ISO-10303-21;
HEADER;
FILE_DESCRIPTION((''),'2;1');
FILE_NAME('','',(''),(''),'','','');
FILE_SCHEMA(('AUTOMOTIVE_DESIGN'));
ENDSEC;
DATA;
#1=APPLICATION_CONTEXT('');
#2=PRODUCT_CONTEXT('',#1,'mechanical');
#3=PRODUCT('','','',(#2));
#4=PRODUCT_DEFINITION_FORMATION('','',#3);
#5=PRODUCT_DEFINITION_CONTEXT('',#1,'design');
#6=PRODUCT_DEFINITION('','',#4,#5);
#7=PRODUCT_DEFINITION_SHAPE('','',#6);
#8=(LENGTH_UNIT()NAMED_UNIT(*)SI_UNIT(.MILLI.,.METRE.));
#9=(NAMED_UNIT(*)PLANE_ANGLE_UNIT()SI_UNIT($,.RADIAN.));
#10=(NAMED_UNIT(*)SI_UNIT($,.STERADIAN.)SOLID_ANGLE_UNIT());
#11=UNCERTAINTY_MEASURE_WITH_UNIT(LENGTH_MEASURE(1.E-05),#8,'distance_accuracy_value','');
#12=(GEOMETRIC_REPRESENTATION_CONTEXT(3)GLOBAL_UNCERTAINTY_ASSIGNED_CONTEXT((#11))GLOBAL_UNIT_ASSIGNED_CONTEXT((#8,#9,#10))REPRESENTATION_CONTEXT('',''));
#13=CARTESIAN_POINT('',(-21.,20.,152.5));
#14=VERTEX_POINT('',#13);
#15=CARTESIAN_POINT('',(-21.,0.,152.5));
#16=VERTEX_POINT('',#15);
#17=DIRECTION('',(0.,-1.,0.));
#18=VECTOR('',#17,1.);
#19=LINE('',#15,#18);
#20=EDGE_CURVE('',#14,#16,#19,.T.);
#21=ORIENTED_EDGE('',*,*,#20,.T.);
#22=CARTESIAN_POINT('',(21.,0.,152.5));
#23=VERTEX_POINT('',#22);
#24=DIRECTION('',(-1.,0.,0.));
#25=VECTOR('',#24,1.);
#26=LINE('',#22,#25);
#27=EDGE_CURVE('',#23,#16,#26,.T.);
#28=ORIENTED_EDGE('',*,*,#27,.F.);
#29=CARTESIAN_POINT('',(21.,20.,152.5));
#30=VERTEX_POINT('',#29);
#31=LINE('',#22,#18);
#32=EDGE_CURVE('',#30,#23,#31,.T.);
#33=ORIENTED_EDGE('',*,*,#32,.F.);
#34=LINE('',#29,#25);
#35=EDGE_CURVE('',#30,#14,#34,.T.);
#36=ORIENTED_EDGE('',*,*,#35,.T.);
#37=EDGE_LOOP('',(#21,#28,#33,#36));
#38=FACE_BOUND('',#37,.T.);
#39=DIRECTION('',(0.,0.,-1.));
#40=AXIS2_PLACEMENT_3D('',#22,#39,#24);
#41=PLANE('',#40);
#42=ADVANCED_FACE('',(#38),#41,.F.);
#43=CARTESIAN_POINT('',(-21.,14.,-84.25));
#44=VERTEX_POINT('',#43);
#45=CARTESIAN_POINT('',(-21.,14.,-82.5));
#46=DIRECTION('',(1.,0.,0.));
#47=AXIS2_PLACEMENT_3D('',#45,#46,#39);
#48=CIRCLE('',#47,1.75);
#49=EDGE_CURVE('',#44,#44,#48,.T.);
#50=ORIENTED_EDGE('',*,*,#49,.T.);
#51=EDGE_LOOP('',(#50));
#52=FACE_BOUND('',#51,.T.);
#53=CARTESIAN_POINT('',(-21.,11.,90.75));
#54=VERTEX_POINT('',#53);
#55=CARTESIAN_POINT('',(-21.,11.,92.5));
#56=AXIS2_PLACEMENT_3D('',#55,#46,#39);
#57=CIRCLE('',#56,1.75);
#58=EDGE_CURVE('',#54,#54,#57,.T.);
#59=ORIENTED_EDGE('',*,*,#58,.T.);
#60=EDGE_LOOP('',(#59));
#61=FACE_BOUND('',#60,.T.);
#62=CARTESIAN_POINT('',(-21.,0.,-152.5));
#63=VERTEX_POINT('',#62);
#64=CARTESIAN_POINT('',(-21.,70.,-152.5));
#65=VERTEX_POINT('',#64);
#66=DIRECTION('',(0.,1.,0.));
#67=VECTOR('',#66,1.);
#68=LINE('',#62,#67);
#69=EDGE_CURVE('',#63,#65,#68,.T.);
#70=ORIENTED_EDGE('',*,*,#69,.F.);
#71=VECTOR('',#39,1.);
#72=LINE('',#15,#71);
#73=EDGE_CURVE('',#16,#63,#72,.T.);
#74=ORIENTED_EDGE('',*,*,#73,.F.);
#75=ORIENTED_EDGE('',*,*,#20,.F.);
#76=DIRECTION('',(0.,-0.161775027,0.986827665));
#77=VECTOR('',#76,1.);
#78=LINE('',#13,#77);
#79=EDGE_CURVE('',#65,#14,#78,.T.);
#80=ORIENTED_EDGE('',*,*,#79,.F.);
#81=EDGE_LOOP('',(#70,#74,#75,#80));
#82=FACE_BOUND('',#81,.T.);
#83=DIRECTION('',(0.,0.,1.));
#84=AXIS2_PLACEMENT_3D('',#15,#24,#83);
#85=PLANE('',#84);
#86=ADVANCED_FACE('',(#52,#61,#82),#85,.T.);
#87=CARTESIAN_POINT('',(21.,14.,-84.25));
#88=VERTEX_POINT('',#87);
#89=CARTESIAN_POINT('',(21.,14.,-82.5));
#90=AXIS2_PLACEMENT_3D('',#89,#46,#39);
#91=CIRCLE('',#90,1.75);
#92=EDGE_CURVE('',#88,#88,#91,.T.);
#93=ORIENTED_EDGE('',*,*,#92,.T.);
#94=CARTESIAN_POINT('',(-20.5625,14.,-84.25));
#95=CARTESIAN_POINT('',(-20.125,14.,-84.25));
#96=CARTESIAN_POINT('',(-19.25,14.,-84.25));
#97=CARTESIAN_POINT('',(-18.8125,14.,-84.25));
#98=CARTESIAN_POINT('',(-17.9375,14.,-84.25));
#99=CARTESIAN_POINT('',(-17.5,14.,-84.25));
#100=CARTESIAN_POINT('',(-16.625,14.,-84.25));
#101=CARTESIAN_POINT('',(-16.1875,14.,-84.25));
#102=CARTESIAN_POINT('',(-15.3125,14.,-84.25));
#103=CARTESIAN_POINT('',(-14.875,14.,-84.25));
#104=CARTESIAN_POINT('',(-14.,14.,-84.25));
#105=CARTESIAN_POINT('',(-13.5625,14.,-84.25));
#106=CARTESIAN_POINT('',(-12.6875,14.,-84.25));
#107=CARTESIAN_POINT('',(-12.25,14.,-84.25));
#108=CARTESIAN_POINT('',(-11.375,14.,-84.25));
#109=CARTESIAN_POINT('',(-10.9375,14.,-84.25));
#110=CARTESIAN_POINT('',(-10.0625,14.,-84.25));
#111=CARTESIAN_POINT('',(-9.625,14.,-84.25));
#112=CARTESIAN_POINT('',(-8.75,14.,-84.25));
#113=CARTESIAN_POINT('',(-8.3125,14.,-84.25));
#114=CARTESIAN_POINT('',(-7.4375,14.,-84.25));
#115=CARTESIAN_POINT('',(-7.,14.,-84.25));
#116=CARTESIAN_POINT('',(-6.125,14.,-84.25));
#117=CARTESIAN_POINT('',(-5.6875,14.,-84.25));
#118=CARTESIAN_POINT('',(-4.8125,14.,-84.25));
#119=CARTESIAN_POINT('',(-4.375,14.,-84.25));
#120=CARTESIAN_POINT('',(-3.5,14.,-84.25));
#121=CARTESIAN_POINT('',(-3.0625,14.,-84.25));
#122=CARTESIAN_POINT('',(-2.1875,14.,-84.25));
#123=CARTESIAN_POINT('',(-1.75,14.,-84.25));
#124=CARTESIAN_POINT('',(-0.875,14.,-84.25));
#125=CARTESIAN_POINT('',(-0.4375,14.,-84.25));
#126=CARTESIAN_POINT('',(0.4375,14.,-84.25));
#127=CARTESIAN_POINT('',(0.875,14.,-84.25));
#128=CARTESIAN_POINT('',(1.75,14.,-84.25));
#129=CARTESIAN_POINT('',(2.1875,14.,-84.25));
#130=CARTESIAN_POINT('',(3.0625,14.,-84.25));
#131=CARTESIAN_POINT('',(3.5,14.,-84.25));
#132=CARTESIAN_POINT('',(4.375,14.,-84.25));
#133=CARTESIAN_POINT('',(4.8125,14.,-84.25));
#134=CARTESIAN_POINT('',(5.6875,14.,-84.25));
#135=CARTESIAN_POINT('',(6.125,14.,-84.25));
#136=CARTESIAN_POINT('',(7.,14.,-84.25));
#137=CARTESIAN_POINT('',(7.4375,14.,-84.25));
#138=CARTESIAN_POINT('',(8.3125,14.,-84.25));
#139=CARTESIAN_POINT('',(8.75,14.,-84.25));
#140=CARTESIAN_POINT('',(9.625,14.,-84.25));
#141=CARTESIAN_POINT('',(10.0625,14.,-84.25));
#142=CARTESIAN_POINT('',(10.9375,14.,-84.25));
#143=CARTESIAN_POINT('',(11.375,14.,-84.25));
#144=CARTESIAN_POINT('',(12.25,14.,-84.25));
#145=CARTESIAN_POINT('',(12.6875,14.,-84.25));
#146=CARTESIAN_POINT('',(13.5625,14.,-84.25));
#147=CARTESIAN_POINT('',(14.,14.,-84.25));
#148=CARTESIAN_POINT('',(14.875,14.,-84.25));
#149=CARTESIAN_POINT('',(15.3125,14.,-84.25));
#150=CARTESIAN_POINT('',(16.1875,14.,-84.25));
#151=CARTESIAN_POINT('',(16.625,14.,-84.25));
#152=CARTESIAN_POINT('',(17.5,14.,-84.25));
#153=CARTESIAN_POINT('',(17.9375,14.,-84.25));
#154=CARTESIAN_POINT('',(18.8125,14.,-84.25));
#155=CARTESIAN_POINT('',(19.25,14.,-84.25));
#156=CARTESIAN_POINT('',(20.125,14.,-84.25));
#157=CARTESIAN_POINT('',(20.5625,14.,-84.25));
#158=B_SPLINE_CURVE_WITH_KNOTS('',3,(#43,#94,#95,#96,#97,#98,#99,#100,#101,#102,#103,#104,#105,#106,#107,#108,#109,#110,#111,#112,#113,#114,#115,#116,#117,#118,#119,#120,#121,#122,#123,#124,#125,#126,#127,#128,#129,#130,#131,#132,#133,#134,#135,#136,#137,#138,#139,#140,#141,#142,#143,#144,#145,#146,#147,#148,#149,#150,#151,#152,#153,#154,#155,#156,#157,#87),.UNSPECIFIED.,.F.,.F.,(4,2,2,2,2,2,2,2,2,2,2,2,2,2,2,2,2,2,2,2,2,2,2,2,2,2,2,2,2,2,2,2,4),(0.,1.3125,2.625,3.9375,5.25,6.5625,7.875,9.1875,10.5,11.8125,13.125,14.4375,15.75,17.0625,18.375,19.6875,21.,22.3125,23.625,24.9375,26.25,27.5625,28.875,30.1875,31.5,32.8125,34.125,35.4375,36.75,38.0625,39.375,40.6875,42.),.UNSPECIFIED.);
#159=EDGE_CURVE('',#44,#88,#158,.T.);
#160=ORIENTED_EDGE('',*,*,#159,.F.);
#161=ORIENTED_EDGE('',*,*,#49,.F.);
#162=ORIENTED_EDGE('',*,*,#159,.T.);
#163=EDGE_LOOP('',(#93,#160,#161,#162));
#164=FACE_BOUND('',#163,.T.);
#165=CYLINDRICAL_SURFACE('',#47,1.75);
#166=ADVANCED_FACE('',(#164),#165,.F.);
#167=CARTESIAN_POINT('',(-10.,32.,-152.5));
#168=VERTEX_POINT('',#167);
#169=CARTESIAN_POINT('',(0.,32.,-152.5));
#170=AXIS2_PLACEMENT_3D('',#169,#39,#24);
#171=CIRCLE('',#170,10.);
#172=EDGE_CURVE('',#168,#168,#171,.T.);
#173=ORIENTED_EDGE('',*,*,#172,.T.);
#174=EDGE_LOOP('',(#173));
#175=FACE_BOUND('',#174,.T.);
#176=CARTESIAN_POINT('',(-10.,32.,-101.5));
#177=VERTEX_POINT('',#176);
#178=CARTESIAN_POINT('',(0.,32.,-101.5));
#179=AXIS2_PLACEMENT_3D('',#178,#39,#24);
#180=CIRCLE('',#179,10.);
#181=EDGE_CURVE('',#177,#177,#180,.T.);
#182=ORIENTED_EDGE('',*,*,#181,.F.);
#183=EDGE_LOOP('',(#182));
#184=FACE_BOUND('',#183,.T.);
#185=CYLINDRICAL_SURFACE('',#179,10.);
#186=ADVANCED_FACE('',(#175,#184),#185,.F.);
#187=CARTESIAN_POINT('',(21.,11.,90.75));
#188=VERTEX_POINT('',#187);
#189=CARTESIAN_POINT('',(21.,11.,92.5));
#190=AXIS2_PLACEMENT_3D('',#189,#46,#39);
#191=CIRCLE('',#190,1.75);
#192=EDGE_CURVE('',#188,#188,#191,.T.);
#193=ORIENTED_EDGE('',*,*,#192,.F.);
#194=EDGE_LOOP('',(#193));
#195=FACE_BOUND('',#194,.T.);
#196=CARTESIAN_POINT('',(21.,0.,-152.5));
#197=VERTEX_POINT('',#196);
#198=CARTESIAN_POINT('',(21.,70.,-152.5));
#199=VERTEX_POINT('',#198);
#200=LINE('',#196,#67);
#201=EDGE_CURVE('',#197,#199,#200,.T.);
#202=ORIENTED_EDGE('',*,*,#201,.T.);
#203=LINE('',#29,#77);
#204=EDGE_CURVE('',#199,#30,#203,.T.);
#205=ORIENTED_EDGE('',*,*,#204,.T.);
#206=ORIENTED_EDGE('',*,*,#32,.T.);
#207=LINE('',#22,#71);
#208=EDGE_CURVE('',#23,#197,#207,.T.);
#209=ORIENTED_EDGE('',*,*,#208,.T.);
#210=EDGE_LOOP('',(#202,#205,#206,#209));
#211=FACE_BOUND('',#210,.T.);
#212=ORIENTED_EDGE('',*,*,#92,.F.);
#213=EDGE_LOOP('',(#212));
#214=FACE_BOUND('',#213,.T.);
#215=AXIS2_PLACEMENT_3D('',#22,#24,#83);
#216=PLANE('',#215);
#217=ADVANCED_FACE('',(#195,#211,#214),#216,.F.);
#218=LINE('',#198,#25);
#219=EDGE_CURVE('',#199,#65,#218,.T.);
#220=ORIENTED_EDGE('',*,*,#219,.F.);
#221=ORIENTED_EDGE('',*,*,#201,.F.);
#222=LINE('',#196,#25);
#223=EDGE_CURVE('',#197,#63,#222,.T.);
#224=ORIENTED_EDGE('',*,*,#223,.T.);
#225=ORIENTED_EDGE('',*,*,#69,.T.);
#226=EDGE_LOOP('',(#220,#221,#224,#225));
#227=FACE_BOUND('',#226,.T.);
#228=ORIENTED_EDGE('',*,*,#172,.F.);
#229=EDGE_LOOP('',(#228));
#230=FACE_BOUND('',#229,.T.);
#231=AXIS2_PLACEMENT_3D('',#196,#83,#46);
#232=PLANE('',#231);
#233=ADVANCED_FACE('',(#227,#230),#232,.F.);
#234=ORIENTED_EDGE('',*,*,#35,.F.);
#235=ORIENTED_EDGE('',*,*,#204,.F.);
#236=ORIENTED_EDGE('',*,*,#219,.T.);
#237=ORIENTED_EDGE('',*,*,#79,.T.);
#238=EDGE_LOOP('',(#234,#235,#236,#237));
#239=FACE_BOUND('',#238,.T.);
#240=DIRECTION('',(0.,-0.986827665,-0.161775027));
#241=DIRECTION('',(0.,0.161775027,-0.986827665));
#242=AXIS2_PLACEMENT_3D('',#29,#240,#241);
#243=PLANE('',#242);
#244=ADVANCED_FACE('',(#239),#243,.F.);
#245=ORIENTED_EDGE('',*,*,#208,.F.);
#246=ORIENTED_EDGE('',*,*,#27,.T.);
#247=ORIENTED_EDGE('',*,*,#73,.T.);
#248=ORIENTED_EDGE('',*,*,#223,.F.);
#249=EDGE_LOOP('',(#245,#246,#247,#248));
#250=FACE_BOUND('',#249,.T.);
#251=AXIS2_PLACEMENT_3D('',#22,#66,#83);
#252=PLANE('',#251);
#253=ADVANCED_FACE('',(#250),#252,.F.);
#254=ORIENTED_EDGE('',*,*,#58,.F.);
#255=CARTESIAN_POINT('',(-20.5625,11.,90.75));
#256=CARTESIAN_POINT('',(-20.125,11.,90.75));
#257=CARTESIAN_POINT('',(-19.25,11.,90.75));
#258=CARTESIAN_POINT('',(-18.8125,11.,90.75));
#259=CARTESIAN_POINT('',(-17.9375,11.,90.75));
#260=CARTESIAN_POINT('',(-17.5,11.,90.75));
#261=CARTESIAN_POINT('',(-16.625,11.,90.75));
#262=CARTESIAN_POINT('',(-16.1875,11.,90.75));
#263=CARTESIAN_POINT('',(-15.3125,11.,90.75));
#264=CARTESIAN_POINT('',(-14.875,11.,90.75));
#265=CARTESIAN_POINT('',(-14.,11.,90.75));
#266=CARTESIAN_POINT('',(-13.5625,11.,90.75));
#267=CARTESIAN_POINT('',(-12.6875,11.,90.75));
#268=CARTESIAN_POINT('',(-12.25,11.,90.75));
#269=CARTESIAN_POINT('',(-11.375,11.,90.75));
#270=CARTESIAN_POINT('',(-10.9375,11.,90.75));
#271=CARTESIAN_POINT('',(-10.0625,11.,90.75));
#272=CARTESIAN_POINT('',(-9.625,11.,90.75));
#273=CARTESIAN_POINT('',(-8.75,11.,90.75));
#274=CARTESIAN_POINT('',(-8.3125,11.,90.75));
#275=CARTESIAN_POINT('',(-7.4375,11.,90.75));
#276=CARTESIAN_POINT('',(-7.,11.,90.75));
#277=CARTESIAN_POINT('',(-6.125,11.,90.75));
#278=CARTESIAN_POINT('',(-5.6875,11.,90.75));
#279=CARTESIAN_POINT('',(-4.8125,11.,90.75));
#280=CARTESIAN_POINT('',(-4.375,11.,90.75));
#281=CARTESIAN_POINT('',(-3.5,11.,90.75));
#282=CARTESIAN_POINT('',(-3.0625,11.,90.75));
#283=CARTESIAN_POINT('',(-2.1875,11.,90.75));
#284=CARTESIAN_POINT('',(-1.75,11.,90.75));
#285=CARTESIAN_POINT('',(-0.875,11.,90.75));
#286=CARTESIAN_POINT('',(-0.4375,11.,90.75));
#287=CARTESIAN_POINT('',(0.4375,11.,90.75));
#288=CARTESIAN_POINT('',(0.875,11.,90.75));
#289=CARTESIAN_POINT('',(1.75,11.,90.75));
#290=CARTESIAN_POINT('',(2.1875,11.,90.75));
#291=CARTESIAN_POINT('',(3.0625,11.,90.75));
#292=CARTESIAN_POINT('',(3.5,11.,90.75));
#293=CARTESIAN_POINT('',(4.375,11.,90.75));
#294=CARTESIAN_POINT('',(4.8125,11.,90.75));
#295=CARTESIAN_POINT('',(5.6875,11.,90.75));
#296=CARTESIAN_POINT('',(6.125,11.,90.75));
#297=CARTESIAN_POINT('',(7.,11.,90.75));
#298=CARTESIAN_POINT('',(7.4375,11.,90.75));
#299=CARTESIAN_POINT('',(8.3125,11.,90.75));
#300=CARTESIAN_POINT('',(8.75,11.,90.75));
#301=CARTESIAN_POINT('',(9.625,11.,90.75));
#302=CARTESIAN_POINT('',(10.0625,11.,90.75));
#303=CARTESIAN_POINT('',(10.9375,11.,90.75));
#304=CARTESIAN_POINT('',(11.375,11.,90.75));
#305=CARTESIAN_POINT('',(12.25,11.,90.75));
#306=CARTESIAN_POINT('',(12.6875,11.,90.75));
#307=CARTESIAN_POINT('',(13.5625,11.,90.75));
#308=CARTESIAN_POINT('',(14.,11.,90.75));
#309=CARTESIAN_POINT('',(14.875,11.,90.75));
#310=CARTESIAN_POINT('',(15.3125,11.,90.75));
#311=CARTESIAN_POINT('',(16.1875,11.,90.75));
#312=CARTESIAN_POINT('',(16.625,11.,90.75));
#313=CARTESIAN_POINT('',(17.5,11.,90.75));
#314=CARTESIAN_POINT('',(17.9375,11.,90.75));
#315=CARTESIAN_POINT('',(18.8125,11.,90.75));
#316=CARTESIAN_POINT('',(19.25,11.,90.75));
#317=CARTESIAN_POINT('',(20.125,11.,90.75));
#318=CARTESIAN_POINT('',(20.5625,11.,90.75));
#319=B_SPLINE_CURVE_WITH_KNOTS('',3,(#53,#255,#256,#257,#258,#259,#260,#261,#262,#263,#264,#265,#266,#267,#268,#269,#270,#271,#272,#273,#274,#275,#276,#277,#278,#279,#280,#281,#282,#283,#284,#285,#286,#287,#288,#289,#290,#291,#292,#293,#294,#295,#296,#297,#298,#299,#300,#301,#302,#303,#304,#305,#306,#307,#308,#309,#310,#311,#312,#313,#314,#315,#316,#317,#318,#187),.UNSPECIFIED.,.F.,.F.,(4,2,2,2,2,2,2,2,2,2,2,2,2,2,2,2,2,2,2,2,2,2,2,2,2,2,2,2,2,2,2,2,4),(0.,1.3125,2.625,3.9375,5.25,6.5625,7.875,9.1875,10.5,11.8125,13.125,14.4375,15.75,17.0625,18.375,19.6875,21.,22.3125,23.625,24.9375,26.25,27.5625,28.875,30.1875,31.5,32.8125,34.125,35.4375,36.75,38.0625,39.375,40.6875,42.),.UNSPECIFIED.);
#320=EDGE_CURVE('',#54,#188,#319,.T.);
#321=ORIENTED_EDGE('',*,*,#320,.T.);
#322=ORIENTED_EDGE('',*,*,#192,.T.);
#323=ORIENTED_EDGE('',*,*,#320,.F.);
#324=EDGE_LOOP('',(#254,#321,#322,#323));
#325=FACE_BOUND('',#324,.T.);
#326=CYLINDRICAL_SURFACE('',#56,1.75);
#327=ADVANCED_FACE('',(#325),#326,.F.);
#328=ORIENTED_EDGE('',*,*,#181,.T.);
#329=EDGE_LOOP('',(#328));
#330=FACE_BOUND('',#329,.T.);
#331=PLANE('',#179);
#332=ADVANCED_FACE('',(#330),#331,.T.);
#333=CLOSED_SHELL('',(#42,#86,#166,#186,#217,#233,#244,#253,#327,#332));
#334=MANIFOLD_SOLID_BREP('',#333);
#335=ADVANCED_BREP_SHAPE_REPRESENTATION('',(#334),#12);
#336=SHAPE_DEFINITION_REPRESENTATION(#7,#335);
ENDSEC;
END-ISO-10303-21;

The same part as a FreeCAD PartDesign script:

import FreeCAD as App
import Part
import Sketcher
from FreeCAD import Vector


def add_polygon(sketch, points):
    """Adds a closed chain of lines whose ends are joined by coincident constraints."""
    first, n = sketch.GeometryCount, len(points)
    for a, b in zip(points, points[1:] + points[:1]):
        sketch.addGeometry(Part.LineSegment(App.Vector(*a, 0), App.Vector(*b, 0)), False)
    for i in range(n):
        sketch.addConstraint(Sketcher.Constraint("Coincident", first + i, 2, first + (i + 1) % n, 1))

doc = App.newDocument("Part")
body = doc.addObject("PartDesign::Body", "Body")

sketch1 = doc.addObject("Sketcher::SketchObject", "Sketch")
body.addObject(sketch1)
sketch1.AttachmentSupport = (doc.YZ_Plane, [""])
sketch1.MapMode = "FlatFace"
add_polygon(sketch1, [(0, 152.5), (0, -152.5), (70, -152.5), (20, 152.5)])
sketch1.addConstraint([
    Sketcher.Constraint("Vertical", 0),
    Sketcher.Constraint("Horizontal", 1),
    Sketcher.Constraint("Horizontal", 3),
    Sketcher.Constraint("Symmetric", 0, 2, 3, 2, -1, 1),
    Sketcher.Constraint("DistanceX", 1, 1, 1, 2, 70.0),
    Sketcher.Constraint("DistanceX", 3, 2, 3, 1, 20.0),
    Sketcher.Constraint("DistanceY", 0, 2, 0, 1, 305.0),
])
pad1 = doc.addObject("PartDesign::Pad", "Pad")
body.addObject(pad1)
pad1.Profile = sketch1
pad1.Length = 42
pad1.Midplane = True

sketch2 = doc.addObject("Sketcher::SketchObject", "Sketch001")
body.addObject(sketch2)
sketch2.AttachmentSupport = (doc.XY_Plane, [""])
sketch2.MapMode = "FlatFace"
sketch2.AttachmentOffset = App.Placement(Vector(0, 0, -152.5), App.Rotation())
sketch2.addGeometry(Part.Circle(Vector(0, 32, 0), Vector(0, 0, 1), 10), False)
sketch2.addConstraint([
    Sketcher.Constraint("PointOnObject", 0, 3, -2),
    Sketcher.Constraint("Diameter", 0, 20.0),
    Sketcher.Constraint("DistanceY", -1, 1, 0, 3, 32.0),
])
pocket1 = doc.addObject("PartDesign::Pocket", "Pocket")
body.addObject(pocket1)
pocket1.Profile = sketch2
pocket1.Length = 51
pocket1.Reversed = True

sketch3 = doc.addObject("Sketcher::SketchObject", "Sketch002")
body.addObject(sketch3)
sketch3.AttachmentSupport = (doc.YZ_Plane, [""])
sketch3.MapMode = "FlatFace"
sketch3.addGeometry([
    Part.Circle(Vector(11, 92.5, 0), Vector(0, 0, 1), 1.75),
    Part.Circle(Vector(14, -82.5, 0), Vector(0, 0, 1), 1.75),
], False)
sketch3.addConstraint([
    Sketcher.Constraint("Equal", 0, 1),
    Sketcher.Constraint("Diameter", 0, 3.5),
    Sketcher.Constraint("DistanceX", -1, 1, 0, 3, 11.0),
    Sketcher.Constraint("DistanceX", -1, 1, 1, 3, 14.0),
    Sketcher.Constraint("DistanceY", 1, 3, 0, 3, 175.0),
    Sketcher.Constraint("DistanceY", -1, 1, 0, 3, 92.5),
])
pocket2 = doc.addObject("PartDesign::Pocket", "Pocket001")
body.addObject(pocket2)
pocket2.Profile = sketch3
pocket2.Type = "ThroughAll"
pocket2.Midplane = True

doc.recompute()
